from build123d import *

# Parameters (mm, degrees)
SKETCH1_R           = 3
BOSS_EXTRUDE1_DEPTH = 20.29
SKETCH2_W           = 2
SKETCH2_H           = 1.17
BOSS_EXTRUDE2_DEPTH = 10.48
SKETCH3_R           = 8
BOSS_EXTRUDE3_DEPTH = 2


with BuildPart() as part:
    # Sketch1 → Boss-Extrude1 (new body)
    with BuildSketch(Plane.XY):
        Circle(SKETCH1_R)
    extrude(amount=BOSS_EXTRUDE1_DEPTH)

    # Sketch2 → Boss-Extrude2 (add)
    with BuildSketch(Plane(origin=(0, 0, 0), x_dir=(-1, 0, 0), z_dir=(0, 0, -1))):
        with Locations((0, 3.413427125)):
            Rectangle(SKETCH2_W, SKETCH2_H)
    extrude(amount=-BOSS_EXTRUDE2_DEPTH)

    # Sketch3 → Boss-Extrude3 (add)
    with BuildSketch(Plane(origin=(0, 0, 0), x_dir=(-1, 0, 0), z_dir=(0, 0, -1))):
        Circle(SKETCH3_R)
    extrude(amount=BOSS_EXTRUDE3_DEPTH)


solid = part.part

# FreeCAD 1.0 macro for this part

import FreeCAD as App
import Part
import Sketcher
from FreeCAD import Vector
Q = App.Units.Quantity

doc = App.newDocument("Part")
body = doc.addObject("PartDesign::Body", "Body")

# Sketch on XY plane
sketch1 = body.newObject("Sketcher::SketchObject", "Sketch")
sketch1.AttachmentSupport = (doc.getObject("XY_Plane"), [""])
sketch1.MapMode = "FlatFace"
sketch1.addGeometry(Part.Circle(Vector(0, 0, 0), Vector(0, 0, 1), 3), False)
sketch1.addConstraint([
    Sketcher.Constraint("Coincident", 0, 3, -1, 1),
    Sketcher.Constraint("Diameter", 0, Q("6 mm")),
])
pad1 = body.newObject("PartDesign::Pad", "Pad")
pad1.Profile = sketch1
pad1.Length = 20.29

# Sketch on XY plane
sketch2 = body.newObject("Sketcher::SketchObject", "Sketch001")
sketch2.AttachmentSupport = (doc.getObject("XY_Plane"), [""])
sketch2.MapMode = "FlatFace"
sketch2.addGeometry([
    Part.LineSegment(Vector(1, 3.998427, 0), Vector(1, 2.828427, 0)),
    Part.LineSegment(Vector(1, 2.828427, 0), Vector(-1, 2.828427, 0)),
    Part.LineSegment(Vector(-1, 2.828427, 0), Vector(-1, 3.998427, 0)),
    Part.LineSegment(Vector(-1, 3.998427, 0), Vector(1, 3.998427, 0)),
], False)
sketch2.addConstraint([
    Sketcher.Constraint("Coincident", 0, 2, 1, 1),
    Sketcher.Constraint("Coincident", 1, 2, 2, 1),
    Sketcher.Constraint("Coincident", 2, 2, 3, 1),
    Sketcher.Constraint("Coincident", 3, 2, 0, 1),
    Sketcher.Constraint("Vertical", 0),
    Sketcher.Constraint("Horizontal", 1),
    Sketcher.Constraint("Vertical", 2),
    Sketcher.Constraint("Horizontal", 3),
    Sketcher.Constraint("DistanceX", 1, 2, 1, 1, Q("2 mm")),
    Sketcher.Constraint("DistanceX", -1, 1, 0, 2, Q("1 mm")),
    Sketcher.Constraint("DistanceY", 0, 2, 0, 1, Q("1.17 mm")),
    Sketcher.Constraint("DistanceY", -1, 1, 0, 2, Q("2.828427 mm")),
])
pad2 = body.newObject("PartDesign::Pad", "Pad001")
pad2.Profile = sketch2
pad2.Length = 10.48

# Sketch on XY plane
sketch3 = body.newObject("Sketcher::SketchObject", "Sketch002")
sketch3.AttachmentSupport = (doc.getObject("XY_Plane"), [""])
sketch3.MapMode = "FlatFace"
sketch3.addGeometry(Part.Circle(Vector(0, 0, 0), Vector(0, 0, 1), 8), False)
sketch3.addConstraint([
    Sketcher.Constraint("Coincident", 0, 3, -1, 1),
    Sketcher.Constraint("Diameter", 0, Q("16 mm")),
])
pad3 = body.newObject("PartDesign::Pad", "Pad002")
pad3.Profile = sketch3
pad3.Length = 2
pad3.Reversed = True

doc.recompute()
